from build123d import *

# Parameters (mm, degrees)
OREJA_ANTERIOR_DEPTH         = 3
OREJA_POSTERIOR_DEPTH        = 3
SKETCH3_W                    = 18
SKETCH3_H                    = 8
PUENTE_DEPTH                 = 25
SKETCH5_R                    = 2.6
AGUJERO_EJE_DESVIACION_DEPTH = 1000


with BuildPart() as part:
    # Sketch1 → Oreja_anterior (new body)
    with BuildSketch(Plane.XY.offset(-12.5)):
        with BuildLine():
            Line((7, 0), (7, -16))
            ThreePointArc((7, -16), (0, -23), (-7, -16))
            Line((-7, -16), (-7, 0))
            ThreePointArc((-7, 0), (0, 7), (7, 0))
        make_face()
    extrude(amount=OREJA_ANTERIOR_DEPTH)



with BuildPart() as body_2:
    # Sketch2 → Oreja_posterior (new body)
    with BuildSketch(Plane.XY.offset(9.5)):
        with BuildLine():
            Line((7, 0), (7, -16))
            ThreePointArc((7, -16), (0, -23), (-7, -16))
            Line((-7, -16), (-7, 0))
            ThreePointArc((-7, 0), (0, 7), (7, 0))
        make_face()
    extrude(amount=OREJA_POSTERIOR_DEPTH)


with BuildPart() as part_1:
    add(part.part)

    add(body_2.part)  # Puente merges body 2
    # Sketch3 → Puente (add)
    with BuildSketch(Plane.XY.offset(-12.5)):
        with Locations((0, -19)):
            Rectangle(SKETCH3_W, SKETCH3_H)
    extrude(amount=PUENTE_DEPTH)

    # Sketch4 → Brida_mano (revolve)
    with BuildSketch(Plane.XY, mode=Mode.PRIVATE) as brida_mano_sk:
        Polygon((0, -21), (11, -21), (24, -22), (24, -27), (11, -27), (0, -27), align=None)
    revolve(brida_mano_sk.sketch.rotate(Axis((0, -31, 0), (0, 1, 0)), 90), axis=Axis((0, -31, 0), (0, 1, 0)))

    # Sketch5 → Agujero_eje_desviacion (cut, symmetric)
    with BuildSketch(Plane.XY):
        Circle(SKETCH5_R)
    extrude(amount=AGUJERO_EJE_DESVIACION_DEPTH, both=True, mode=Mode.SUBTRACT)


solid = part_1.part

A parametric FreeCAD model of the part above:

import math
import FreeCAD as App
import Part
import Sketcher
from FreeCAD import Vector


def add_polygon(sketch, points):
    """Adds a closed chain of lines whose ends are joined by coincident constraints."""
    first, n = sketch.GeometryCount, len(points)
    for a, b in zip(points, points[1:] + points[:1]):
        sketch.addGeometry(Part.LineSegment(App.Vector(*a, 0), App.Vector(*b, 0)), False)
    for i in range(n):
        sketch.addConstraint(Sketcher.Constraint("Coincident", first + i, 2, first + (i + 1) % n, 1))

doc = App.newDocument("Part")
body = doc.addObject("PartDesign::Body", "Body")

# Sketch on XY plane
sketch1 = body.newObject("Sketcher::SketchObject", "Sketch")
sketch1.AttachmentSupport = (doc.getObject("XY_Plane"), [""])
sketch1.MapMode = "FlatFace"
sketch1.AttachmentOffset = App.Placement(Vector(0, 0, -12.5), App.Rotation())
sketch1.addGeometry(Part.LineSegment(Vector(7, -16, 0), Vector(7, 0, 0)), False)
sketch1.addGeometry(Part.ArcOfCircle(Part.Circle(Vector(0, 0, 0), Vector(0, 0, 1), 7), math.radians(0), math.radians(180)), False)
sketch1.addGeometry(Part.LineSegment(Vector(-7, 0, 0), Vector(-7, -16, 0)), False)
sketch1.addGeometry(Part.ArcOfCircle(Part.Circle(Vector(0, -16, 0), Vector(0, 0, 1), 7), math.radians(180), math.radians(360)), False)
sketch1.addConstraint(Sketcher.Constraint("Tangent", 0, 2, 1, 1))
sketch1.addConstraint(Sketcher.Constraint("Tangent", 1, 2, 2, 1))
sketch1.addConstraint(Sketcher.Constraint("Tangent", 2, 2, 3, 1))
sketch1.addConstraint(Sketcher.Constraint("Tangent", 3, 2, 0, 1))
sketch1.addConstraint(Sketcher.Constraint("Vertical", 0))
sketch1.addConstraint(Sketcher.Constraint("Vertical", 2))
sketch1.addConstraint(Sketcher.Constraint("Coincident", 1, 3, -1, 1))
sketch1.addConstraint(Sketcher.Constraint("Radius", 1, 7.0))
sketch1.addConstraint(Sketcher.Constraint("DistanceY", 0, 1, 0, 2, 16.0))
pad1 = body.newObject("PartDesign::Pad", "Pad")
pad1.Profile = sketch1
pad1.Length = 3
body2 = doc.addObject("PartDesign::Body", "Body001")

# Sketch on XY plane
sketch2 = body2.newObject("Sketcher::SketchObject", "Sketch001")
sketch2.AttachmentSupport = (doc.getObject("XY_Plane001"), [""])
sketch2.MapMode = "FlatFace"
sketch2.AttachmentOffset = App.Placement(Vector(0, 0, 9.5), App.Rotation())
sketch2.addGeometry(Part.LineSegment(Vector(7, -16, 0), Vector(7, 0, 0)), False)
sketch2.addGeometry(Part.ArcOfCircle(Part.Circle(Vector(0, 0, 0), Vector(0, 0, 1), 7), math.radians(0), math.radians(180)), False)
sketch2.addGeometry(Part.LineSegment(Vector(-7, 0, 0), Vector(-7, -16, 0)), False)
sketch2.addGeometry(Part.ArcOfCircle(Part.Circle(Vector(0, -16, 0), Vector(0, 0, 1), 7), math.radians(180), math.radians(360)), False)
sketch2.addConstraint(Sketcher.Constraint("Tangent", 0, 2, 1, 1))
sketch2.addConstraint(Sketcher.Constraint("Tangent", 1, 2, 2, 1))
sketch2.addConstraint(Sketcher.Constraint("Tangent", 2, 2, 3, 1))
sketch2.addConstraint(Sketcher.Constraint("Tangent", 3, 2, 0, 1))
sketch2.addConstraint(Sketcher.Constraint("Vertical", 0))
sketch2.addConstraint(Sketcher.Constraint("Vertical", 2))
sketch2.addConstraint(Sketcher.Constraint("Coincident", 1, 3, -1, 1))
sketch2.addConstraint(Sketcher.Constraint("Radius", 1, 7.0))
sketch2.addConstraint(Sketcher.Constraint("DistanceY", 0, 1, 0, 2, 16.0))
pad2 = body2.newObject("PartDesign::Pad", "Pad001")
pad2.Profile = sketch2
pad2.Length = 3
body.AllowCompound = True
doc.recompute()

boolean = body.newObject("PartDesign::Boolean", "Boolean")
boolean.Type = "Fuse"
boolean.addObjects([body2])

# Sketch on XY plane
sketch3 = body.newObject("Sketcher::SketchObject", "Sketch002")
sketch3.AttachmentSupport = (doc.getObject("XY_Plane"), [""])
sketch3.MapMode = "FlatFace"
sketch3.AttachmentOffset = App.Placement(Vector(0, 0, -12.5), App.Rotation())
add_polygon(sketch3, [(-9, -15), (-9, -23), (9, -23), (9, -15)])  # lines 0-3
sketch3.addConstraint(Sketcher.Constraint("Vertical", 0))
sketch3.addConstraint(Sketcher.Constraint("Horizontal", 1))
sketch3.addConstraint(Sketcher.Constraint("Vertical", 2))
sketch3.addConstraint(Sketcher.Constraint("Horizontal", 3))
sketch3.addConstraint(Sketcher.Constraint("DistanceX", 1, 1, 1, 2, 18.0))
sketch3.addConstraint(Sketcher.Constraint("DistanceY", 0, 2, 0, 1, 8.0))
sketch3.addConstraint(Sketcher.Constraint("DistanceX", 0, 2, -1, 1, 9.0))
sketch3.addConstraint(Sketcher.Constraint("DistanceY", 0, 2, -1, 1, 23.0))
pad3 = body.newObject("PartDesign::Pad", "Pad002")
pad3.Profile = sketch3
pad3.Length = 25

# Sketch on XY plane
sketch4 = body.newObject("Sketcher::SketchObject", "Sketch003")
sketch4.AttachmentSupport = (doc.getObject("XY_Plane"), [""])
sketch4.MapMode = "FlatFace"
add_polygon(sketch4, [(11, -21), (0, -21), (0, -27), (24, -27), (24, -22)])  # lines 0-4
sketch4.addConstraint(Sketcher.Constraint("Horizontal", 0))
sketch4.addConstraint(Sketcher.Constraint("Vertical", 1))
sketch4.addConstraint(Sketcher.Constraint("Horizontal", 2))
sketch4.addConstraint(Sketcher.Constraint("Vertical", 3))
sketch4.addConstraint(Sketcher.Constraint("PointOnObject", 0, 2, -2))
sketch4.addConstraint(Sketcher.Constraint("DistanceX", 0, 2, 0, 1, 11.0))
sketch4.addConstraint(Sketcher.Constraint("DistanceX", 2, 1, 2, 2, 24.0))
sketch4.addConstraint(Sketcher.Constraint("DistanceY", 1, 2, 1, 1, 6.0))
sketch4.addConstraint(Sketcher.Constraint("DistanceY", 3, 1, 3, 2, 5.0))
sketch4.addConstraint(Sketcher.Constraint("DistanceY", 0, 2, -1, 1, 21.0))
revolution = body.newObject("PartDesign::Revolution", "Revolution")
revolution.Profile = sketch4
revolution.ReferenceAxis = (sketch4, ["V_Axis"])
revolution.Angle = 360

# Sketch on XY plane
sketch5 = body.newObject("Sketcher::SketchObject", "Sketch004")
sketch5.AttachmentSupport = (doc.getObject("XY_Plane"), [""])
sketch5.MapMode = "FlatFace"
sketch5.addGeometry(Part.Circle(Vector(0, 0, 0), Vector(0, 0, 1), 2.6), False)
sketch5.addConstraint(Sketcher.Constraint("Coincident", 0, 3, -1, 1))
sketch5.addConstraint(Sketcher.Constraint("Diameter", 0, 5.2))
pocket1 = body.newObject("PartDesign::Pocket", "Pocket")
pocket1.Profile = sketch5
pocket1.Length = 2000
pocket1.Midplane = True

doc.recompute()
